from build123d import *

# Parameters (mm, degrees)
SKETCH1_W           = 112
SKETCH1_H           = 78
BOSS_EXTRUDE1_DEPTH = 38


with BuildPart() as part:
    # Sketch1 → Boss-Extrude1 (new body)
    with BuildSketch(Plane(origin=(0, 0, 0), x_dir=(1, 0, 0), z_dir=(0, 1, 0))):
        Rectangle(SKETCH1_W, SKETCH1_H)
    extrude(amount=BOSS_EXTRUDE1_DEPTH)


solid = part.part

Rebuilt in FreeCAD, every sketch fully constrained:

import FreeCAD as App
import Part
import Sketcher

V = App.Vector

doc = App.newDocument("Part")
params = doc.addObject("Spreadsheet::Sheet", "Params")
for row, (alias, value) in enumerate([
    ("sketch1_width", "112 mm"),
    ("sketch1_height", "78 mm"),
    ("pad1_length", "38 mm"),
], start=1):
    params.set(f"A{row}", alias)
    params.set(f"B{row}", "=" + value)
    params.setAlias(f"B{row}", alias)

body = doc.addObject("PartDesign::Body", "Body")

sketch1 = doc.addObject("Sketcher::SketchObject", "Sketch")
body.addObject(sketch1)
sketch1.AttachmentSupport = (doc.XZ_Plane, [""])
sketch1.MapMode = "FlatFace"
sketch1.addGeometry(Part.LineSegment(V(-56, -39, 0), V(-56, 39, 0)), False)
sketch1.addGeometry(Part.LineSegment(V(-56, 39, 0), V(56, 39, 0)), False)
sketch1.addGeometry(Part.LineSegment(V(56, 39, 0), V(56, -39, 0)), False)
sketch1.addGeometry(Part.LineSegment(V(56, -39, 0), V(-56, -39, 0)), False)
sketch1.addConstraint(Sketcher.Constraint("Coincident", 0, 2, 1, 1))
sketch1.addConstraint(Sketcher.Constraint("Coincident", 1, 2, 2, 1))
sketch1.addConstraint(Sketcher.Constraint("Coincident", 2, 2, 3, 1))
sketch1.addConstraint(Sketcher.Constraint("Coincident", 3, 2, 0, 1))
sketch1.addConstraint(Sketcher.Constraint("Vertical", 0))
sketch1.addConstraint(Sketcher.Constraint("Horizontal", 1))
sketch1.addConstraint(Sketcher.Constraint("Vertical", 2))
sketch1.addConstraint(Sketcher.Constraint("Horizontal", 3))
sketch1.addConstraint(Sketcher.Constraint("Symmetric", 0, 2, 2, 2, -1, 1))
sketch1.addConstraint(Sketcher.Constraint("DistanceX", 1, 1, 1, 2, 112.0))
sketch1.addConstraint(Sketcher.Constraint("DistanceY", 0, 1, 0, 2, 78.0))
sketch1.setExpression("Constraints[9]", "Params.sketch1_width")
sketch1.setExpression("Constraints[10]", "Params.sketch1_height")
pad1 = doc.addObject("PartDesign::Pad", "Pad")
body.addObject(pad1)
pad1.Profile = sketch1
pad1.setExpression("Length", "Params.pad1_length")
pad1.Reversed = True

doc.recompute()
